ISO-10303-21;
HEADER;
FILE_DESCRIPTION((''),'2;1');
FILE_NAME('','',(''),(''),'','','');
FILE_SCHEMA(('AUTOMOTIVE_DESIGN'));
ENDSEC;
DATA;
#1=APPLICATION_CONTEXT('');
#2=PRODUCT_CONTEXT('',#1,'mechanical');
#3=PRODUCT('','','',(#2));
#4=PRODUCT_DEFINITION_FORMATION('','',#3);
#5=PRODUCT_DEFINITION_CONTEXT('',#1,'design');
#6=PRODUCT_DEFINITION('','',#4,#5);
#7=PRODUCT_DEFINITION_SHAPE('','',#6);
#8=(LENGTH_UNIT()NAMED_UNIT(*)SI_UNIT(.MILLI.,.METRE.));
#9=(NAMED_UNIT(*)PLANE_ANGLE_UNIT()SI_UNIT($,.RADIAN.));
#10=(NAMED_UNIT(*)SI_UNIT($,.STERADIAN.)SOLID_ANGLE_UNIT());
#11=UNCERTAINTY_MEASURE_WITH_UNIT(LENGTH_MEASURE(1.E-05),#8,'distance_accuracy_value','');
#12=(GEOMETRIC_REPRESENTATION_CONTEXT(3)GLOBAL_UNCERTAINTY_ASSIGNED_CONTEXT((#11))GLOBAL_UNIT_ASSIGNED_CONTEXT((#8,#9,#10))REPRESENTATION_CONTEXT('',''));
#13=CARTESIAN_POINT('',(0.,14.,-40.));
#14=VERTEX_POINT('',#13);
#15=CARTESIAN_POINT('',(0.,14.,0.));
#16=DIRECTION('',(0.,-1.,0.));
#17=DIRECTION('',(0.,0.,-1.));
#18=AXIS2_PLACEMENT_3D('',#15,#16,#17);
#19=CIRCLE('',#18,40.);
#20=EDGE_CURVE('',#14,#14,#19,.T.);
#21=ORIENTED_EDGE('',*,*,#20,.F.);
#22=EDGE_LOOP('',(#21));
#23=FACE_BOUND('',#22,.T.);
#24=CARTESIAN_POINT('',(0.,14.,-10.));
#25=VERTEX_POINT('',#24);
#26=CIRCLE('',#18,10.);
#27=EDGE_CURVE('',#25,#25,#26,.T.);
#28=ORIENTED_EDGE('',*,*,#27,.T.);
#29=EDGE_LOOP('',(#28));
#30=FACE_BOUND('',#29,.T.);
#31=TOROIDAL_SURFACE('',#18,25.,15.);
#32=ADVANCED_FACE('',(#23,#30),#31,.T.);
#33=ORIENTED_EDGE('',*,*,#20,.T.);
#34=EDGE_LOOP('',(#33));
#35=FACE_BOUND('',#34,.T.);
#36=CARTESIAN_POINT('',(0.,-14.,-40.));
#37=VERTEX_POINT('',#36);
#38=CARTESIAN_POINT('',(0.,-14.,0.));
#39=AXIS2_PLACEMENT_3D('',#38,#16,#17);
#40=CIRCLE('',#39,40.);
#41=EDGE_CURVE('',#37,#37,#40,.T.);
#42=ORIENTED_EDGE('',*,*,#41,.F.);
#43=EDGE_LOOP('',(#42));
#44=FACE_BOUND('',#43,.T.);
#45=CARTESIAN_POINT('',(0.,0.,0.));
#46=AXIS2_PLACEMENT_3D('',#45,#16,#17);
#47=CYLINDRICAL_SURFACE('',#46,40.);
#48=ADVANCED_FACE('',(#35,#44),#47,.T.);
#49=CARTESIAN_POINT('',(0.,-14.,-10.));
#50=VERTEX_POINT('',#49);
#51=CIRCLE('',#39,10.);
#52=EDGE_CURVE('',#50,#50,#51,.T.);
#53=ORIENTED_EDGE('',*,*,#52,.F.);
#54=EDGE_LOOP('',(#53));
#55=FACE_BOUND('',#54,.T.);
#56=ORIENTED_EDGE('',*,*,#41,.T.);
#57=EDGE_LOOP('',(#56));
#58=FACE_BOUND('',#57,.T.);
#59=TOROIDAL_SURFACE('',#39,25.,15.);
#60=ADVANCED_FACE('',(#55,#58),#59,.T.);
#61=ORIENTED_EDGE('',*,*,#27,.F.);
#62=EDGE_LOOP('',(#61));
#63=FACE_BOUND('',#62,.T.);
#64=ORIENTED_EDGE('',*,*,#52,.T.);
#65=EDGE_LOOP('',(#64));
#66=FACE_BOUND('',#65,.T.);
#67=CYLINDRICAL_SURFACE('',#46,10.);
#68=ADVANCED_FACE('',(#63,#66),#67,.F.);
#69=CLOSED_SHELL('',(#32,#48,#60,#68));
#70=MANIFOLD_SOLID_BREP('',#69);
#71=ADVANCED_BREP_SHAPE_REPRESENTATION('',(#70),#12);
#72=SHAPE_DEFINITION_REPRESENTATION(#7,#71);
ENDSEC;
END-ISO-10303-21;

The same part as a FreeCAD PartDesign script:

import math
import FreeCAD as App
import Part
import Sketcher

doc = App.newDocument("Part")
body = doc.addObject("PartDesign::Body", "Body")

sketch1 = doc.addObject("Sketcher::SketchObject", "Sketch")
body.addObject(sketch1)
sketch1.AttachmentSupport = (doc.XY_Plane, [""])
sketch1.MapMode = "FlatFace"
sketch1.addGeometry([
    Part.LineSegment(App.Vector(-40, 14, 0), App.Vector(-40, -14, 0)),
    Part.ArcOfCircle(Part.Circle(App.Vector(-25, -14, 0), App.Vector(0, 0, 1), 15), math.radians(180), math.radians(360)),
    Part.LineSegment(App.Vector(-10, -14, 0), App.Vector(-10, 14, 0)),
    Part.ArcOfCircle(Part.Circle(App.Vector(-25, 14, 0), App.Vector(0, 0, 1), 15), math.radians(0), math.radians(180)),
], False)
sketch1.addConstraint([
    Sketcher.Constraint("Tangent", 0, 2, 1, 1),
    Sketcher.Constraint("Tangent", 1, 2, 2, 1),
    Sketcher.Constraint("Tangent", 2, 2, 3, 1),
    Sketcher.Constraint("Tangent", 3, 2, 0, 1),
    Sketcher.Constraint("Vertical", 0),
    Sketcher.Constraint("Vertical", 2),
    Sketcher.Constraint("Radius", 1, 15.0),
    Sketcher.Constraint("DistanceY", 0, 2, 0, 1, 28.0),
    Sketcher.Constraint("DistanceX", 1, 3, -1, 1, 25.0),
    Sketcher.Constraint("DistanceY", 1, 3, -1, 1, 14.0),
])
revolution = doc.addObject("PartDesign::Revolution", "Revolution")
body.addObject(revolution)
revolution.Profile = sketch1
revolution.ReferenceAxis = (sketch1, ["V_Axis"])
revolution.Angle = 360

doc.recompute()
